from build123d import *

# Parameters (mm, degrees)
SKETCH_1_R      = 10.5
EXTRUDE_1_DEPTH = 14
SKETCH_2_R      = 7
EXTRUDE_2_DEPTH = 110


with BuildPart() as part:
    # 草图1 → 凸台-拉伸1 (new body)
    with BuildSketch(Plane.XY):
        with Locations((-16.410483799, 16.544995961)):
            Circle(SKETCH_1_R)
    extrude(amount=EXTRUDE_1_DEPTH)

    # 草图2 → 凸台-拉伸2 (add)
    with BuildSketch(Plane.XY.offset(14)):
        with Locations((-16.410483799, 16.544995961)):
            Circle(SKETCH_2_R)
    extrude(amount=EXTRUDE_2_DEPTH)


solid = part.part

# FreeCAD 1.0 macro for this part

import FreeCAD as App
import Part
import Sketcher
from FreeCAD import Vector
Q = App.Units.Quantity

doc = App.newDocument("Part")
body = doc.addObject("PartDesign::Body", "Body")

# Sketch on XY plane
sketch1 = body.newObject("Sketcher::SketchObject", "Sketch")
sketch1.AttachmentSupport = (doc.getObject("XY_Plane"), [""])
sketch1.MapMode = "FlatFace"
sketch1.addGeometry(Part.Circle(Vector(-16, 17, 0), Vector(0, 0, 1), 10), False)
sketch1.addConstraint([
    Sketcher.Constraint("Diameter", 0, Q("21 mm")),
    Sketcher.Constraint("DistanceX", 0, 3, -1, 1, Q("16.410484 mm")),
    Sketcher.Constraint("DistanceY", -1, 1, 0, 3, Q("16.544996 mm")),
])
pad1 = body.newObject("PartDesign::Pad", "Pad")
pad1.Profile = sketch1
pad1.Length = 14

# Sketch on XY plane
sketch2 = body.newObject("Sketcher::SketchObject", "Sketch001")
sketch2.AttachmentSupport = (doc.getObject("XY_Plane"), [""])
sketch2.MapMode = "FlatFace"
sketch2.AttachmentOffset = App.Placement(Vector(0, 0, 14), App.Rotation())
sketch2.addGeometry(Part.Circle(Vector(-16, 17, 0), Vector(0, 0, 1), 7), False)
sketch2.addConstraint([
    Sketcher.Constraint("Diameter", 0, Q("14 mm")),
    Sketcher.Constraint("DistanceX", 0, 3, -1, 1, Q("16.410484 mm")),
    Sketcher.Constraint("DistanceY", -1, 1, 0, 3, Q("16.544996 mm")),
])
pad2 = body.newObject("PartDesign::Pad", "Pad001")
pad2.Profile = sketch2
pad2.Length = 110

doc.recompute()
